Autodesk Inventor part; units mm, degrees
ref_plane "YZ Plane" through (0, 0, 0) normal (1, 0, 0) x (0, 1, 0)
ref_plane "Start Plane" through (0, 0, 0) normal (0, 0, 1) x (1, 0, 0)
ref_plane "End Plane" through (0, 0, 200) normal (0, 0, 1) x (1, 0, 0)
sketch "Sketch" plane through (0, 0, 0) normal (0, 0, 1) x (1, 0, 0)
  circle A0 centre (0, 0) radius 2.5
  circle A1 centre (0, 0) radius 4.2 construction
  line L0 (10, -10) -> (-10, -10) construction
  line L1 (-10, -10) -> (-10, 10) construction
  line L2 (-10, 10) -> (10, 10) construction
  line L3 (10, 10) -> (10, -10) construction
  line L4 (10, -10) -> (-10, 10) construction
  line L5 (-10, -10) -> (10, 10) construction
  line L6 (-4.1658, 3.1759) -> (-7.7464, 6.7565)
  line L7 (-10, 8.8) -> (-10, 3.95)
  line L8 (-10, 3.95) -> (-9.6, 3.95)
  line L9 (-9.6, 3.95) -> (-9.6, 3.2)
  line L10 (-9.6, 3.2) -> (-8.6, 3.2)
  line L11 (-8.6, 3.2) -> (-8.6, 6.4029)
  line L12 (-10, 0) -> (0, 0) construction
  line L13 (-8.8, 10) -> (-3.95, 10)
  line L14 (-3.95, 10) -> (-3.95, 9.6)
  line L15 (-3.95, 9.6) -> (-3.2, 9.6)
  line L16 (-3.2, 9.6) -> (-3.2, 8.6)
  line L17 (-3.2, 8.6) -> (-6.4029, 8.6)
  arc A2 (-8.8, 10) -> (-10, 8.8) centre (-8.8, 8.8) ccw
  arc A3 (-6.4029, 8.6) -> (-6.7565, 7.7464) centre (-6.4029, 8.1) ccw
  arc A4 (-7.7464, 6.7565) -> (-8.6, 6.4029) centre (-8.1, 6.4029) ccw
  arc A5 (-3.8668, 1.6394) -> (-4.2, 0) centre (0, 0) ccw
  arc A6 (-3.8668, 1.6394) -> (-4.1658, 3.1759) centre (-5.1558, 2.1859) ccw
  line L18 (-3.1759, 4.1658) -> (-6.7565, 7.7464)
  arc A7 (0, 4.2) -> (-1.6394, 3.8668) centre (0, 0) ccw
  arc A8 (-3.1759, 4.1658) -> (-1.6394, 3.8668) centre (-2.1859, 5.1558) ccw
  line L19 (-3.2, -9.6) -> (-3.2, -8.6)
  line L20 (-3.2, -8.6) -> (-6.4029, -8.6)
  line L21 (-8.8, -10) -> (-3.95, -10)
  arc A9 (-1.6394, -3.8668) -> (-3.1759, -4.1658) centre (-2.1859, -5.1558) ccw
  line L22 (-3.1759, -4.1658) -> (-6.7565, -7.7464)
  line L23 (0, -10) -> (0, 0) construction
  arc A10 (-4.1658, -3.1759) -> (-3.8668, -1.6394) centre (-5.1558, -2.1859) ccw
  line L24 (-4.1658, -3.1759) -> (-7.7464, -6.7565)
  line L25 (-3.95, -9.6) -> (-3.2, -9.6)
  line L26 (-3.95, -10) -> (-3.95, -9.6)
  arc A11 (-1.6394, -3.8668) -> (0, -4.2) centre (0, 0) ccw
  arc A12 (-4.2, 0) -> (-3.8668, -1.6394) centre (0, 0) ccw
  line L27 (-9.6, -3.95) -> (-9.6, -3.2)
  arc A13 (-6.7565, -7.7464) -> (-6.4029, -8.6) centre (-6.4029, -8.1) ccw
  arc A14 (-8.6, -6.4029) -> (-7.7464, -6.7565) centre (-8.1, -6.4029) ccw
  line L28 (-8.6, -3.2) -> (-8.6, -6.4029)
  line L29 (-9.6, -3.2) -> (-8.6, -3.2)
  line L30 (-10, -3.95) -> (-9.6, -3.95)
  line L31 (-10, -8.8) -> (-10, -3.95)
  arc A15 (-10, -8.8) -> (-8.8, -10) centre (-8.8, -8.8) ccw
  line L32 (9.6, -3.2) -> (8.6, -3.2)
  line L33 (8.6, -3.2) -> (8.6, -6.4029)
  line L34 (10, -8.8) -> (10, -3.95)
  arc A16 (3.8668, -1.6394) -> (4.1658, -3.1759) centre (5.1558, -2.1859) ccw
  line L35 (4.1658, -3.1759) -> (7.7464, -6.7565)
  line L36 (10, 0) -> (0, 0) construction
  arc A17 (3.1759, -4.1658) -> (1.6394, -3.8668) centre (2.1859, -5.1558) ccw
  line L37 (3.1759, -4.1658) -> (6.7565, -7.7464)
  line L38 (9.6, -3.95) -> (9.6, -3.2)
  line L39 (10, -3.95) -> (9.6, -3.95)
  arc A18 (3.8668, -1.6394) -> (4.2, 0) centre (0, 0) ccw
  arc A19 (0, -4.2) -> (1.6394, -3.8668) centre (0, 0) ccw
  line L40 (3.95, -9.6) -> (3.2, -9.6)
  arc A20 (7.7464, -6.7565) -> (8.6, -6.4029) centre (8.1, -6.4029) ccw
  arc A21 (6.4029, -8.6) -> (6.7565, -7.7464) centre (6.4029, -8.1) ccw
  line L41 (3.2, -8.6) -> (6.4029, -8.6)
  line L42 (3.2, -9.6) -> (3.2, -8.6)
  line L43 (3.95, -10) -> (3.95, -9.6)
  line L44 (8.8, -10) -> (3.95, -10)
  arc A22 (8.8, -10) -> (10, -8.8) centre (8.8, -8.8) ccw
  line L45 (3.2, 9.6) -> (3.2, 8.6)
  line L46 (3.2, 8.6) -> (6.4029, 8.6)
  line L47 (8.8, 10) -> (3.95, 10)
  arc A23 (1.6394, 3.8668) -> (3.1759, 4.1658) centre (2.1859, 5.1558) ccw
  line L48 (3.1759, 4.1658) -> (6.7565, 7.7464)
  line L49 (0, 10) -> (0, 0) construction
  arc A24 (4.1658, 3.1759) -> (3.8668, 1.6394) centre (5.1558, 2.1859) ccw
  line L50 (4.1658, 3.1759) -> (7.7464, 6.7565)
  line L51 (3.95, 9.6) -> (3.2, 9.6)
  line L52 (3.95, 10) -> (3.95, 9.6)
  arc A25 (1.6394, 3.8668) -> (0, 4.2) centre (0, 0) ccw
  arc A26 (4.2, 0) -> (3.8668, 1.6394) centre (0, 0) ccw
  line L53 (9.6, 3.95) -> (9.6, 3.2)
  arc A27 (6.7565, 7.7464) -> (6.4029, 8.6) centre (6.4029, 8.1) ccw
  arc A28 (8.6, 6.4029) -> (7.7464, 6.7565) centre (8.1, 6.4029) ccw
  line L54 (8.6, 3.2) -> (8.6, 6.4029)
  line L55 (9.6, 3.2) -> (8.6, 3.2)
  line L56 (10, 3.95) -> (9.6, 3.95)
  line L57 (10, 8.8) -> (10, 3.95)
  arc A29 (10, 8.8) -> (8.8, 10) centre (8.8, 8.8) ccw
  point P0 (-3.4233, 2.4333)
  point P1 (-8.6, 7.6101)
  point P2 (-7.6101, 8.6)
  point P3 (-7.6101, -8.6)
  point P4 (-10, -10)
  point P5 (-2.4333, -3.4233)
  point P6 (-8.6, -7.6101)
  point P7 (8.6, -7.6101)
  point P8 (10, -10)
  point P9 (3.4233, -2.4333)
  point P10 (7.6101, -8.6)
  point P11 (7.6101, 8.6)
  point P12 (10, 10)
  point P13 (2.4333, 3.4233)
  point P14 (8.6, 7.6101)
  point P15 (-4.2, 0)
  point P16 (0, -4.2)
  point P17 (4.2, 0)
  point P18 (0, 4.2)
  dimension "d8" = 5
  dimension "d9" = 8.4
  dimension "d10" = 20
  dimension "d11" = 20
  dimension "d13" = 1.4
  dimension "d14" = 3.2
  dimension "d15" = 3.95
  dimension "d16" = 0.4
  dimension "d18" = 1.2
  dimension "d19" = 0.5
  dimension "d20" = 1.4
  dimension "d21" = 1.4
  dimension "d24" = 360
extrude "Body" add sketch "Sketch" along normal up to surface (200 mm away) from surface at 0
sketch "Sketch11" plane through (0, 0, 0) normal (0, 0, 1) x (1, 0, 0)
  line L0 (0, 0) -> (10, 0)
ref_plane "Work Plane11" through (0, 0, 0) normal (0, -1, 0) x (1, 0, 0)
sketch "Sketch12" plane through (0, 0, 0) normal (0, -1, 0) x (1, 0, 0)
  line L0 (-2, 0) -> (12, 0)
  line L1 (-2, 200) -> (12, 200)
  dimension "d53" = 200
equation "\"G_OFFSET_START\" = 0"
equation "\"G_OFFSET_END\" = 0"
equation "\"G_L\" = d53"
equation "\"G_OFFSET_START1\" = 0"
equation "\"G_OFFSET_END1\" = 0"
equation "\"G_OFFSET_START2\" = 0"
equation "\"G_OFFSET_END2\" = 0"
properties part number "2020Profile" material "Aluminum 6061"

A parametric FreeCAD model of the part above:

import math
import FreeCAD as App
import Part
import Sketcher
from FreeCAD import Vector
Q = App.Units.Quantity

doc = App.newDocument("Part")
body = doc.addObject("PartDesign::Body", "Body")

# Sketch on XY plane
sketch1 = body.newObject("Sketcher::SketchObject", "Sketch")
sketch1.AttachmentSupport = (doc.getObject("XY_Plane"), [""])
sketch1.MapMode = "FlatFace"
sketch1.addGeometry([
    Part.LineSegment(Vector(-7.75, 6.76, 0), Vector(-4.17, 3.18, 0)),  # 0
    Part.ArcOfCircle(Part.Circle(Vector(-5.16, 2.19, 0), Vector(0, 0, 1), 1.4), math.radians(-23), math.radians(45)),  # 1
    Part.ArcOfCircle(Part.Circle(Vector(0, 0, 0), Vector(0, 0, 1), 4.2), math.radians(157), math.radians(180)),  # 2
    Part.ArcOfCircle(Part.Circle(Vector(0, 0, 0), Vector(0, 0, 1), 4.2), math.radians(180), math.radians(203)),  # 3
    Part.ArcOfCircle(Part.Circle(Vector(-5.16, -2.19, 0), Vector(0, 0, 1), 1.4), math.radians(-45), math.radians(23)),  # 4
    Part.LineSegment(Vector(-4.17, -3.18, 0), Vector(-7.75, -6.76, 0)),  # 5
    Part.ArcOfCircle(Part.Circle(Vector(-8.1, -6.4, 0), Vector(0, 0, 1), 0.5), math.radians(180), math.radians(315)),  # 6
    Part.LineSegment(Vector(-8.6, -6.4, 0), Vector(-8.6, -3.2, 0)),  # 7
    Part.LineSegment(Vector(-8.6, -3.2, 0), Vector(-9.6, -3.2, 0)),  # 8
    Part.LineSegment(Vector(-9.6, -3.2, 0), Vector(-9.6, -3.95, 0)),  # 9
    Part.LineSegment(Vector(-9.6, -3.95, 0), Vector(-10, -3.95, 0)),  # 10
    Part.LineSegment(Vector(-10, -3.95, 0), Vector(-10, -8.8, 0)),  # 11
    Part.ArcOfCircle(Part.Circle(Vector(-8.8, -8.8, 0), Vector(0, 0, 1), 1.2), math.radians(180), math.radians(270)),  # 12
    Part.LineSegment(Vector(-8.8, -10, 0), Vector(-3.95, -10, 0)),  # 13
    Part.LineSegment(Vector(-3.95, -10, 0), Vector(-3.95, -9.6, 0)),  # 14
    Part.LineSegment(Vector(-3.95, -9.6, 0), Vector(-3.2, -9.6, 0)),  # 15
    Part.LineSegment(Vector(-3.2, -9.6, 0), Vector(-3.2, -8.6, 0)),  # 16
    Part.LineSegment(Vector(-3.2, -8.6, 0), Vector(-6.4, -8.6, 0)),  # 17
    Part.ArcOfCircle(Part.Circle(Vector(-6.4, -8.1, 0), Vector(0, 0, 1), 0.5), math.radians(135), math.radians(270)),  # 18
    Part.LineSegment(Vector(-6.76, -7.75, 0), Vector(-3.18, -4.17, 0)),  # 19
    Part.ArcOfCircle(Part.Circle(Vector(-2.19, -5.16, 0), Vector(0, 0, 1), 1.4), math.radians(67), math.radians(135)),  # 20
    Part.ArcOfCircle(Part.Circle(Vector(0, 0, 0), Vector(0, 0, 1), 4.2), math.radians(-113), math.radians(-90)),  # 21
    Part.ArcOfCircle(Part.Circle(Vector(0, 0, 0), Vector(0, 0, 1), 4.2), math.radians(-90), math.radians(-67)),  # 22
    Part.ArcOfCircle(Part.Circle(Vector(2.19, -5.16, 0), Vector(0, 0, 1), 1.4), math.radians(45), math.radians(113)),  # 23
    Part.LineSegment(Vector(3.18, -4.17, 0), Vector(6.76, -7.75, 0)),  # 24
    Part.ArcOfCircle(Part.Circle(Vector(6.4, -8.1, 0), Vector(0, 0, 1), 0.5), math.radians(-90), math.radians(45)),  # 25
    Part.LineSegment(Vector(6.4, -8.6, 0), Vector(3.2, -8.6, 0)),  # 26
    Part.LineSegment(Vector(3.2, -8.6, 0), Vector(3.2, -9.6, 0)),  # 27
    Part.LineSegment(Vector(3.2, -9.6, 0), Vector(3.95, -9.6, 0)),  # 28
    Part.LineSegment(Vector(3.95, -9.6, 0), Vector(3.95, -10, 0)),  # 29
    Part.LineSegment(Vector(3.95, -10, 0), Vector(8.8, -10, 0)),  # 30
    Part.ArcOfCircle(Part.Circle(Vector(8.8, -8.8, 0), Vector(0, 0, 1), 1.2), math.radians(-90), math.radians(0)),  # 31
    Part.LineSegment(Vector(10, -8.8, 0), Vector(10, -3.95, 0)),  # 32
    Part.LineSegment(Vector(10, -3.95, 0), Vector(9.6, -3.95, 0)),  # 33
    Part.LineSegment(Vector(9.6, -3.95, 0), Vector(9.6, -3.2, 0)),  # 34
    Part.LineSegment(Vector(9.6, -3.2, 0), Vector(8.6, -3.2, 0)),  # 35
    Part.LineSegment(Vector(8.6, -3.2, 0), Vector(8.6, -6.4, 0)),  # 36
    Part.ArcOfCircle(Part.Circle(Vector(8.1, -6.4, 0), Vector(0, 0, 1), 0.5), math.radians(-135), math.radians(0)),  # 37
    Part.LineSegment(Vector(7.75, -6.76, 0), Vector(4.17, -3.18, 0)),  # 38
    Part.ArcOfCircle(Part.Circle(Vector(5.16, -2.19, 0), Vector(0, 0, 1), 1.4), math.radians(157), math.radians(225)),  # 39
    Part.ArcOfCircle(Part.Circle(Vector(0, 0, 0), Vector(0, 0, 1), 4.2), math.radians(-23), math.radians(0)),  # 40
    Part.ArcOfCircle(Part.Circle(Vector(0, 0, 0), Vector(0, 0, 1), 4.2), math.radians(0), math.radians(23)),  # 41
    Part.ArcOfCircle(Part.Circle(Vector(5.16, 2.19, 0), Vector(0, 0, 1), 1.4), math.radians(135), math.radians(203)),  # 42
    Part.LineSegment(Vector(4.17, 3.18, 0), Vector(7.75, 6.76, 0)),  # 43
    Part.ArcOfCircle(Part.Circle(Vector(8.1, 6.4, 0), Vector(0, 0, 1), 0.5), math.radians(0), math.radians(135)),  # 44
    Part.LineSegment(Vector(8.6, 6.4, 0), Vector(8.6, 3.2, 0)),  # 45
    Part.LineSegment(Vector(8.6, 3.2, 0), Vector(9.6, 3.2, 0)),  # 46
    Part.LineSegment(Vector(9.6, 3.2, 0), Vector(9.6, 3.95, 0)),  # 47
    Part.LineSegment(Vector(9.6, 3.95, 0), Vector(10, 3.95, 0)),  # 48
    Part.LineSegment(Vector(10, 3.95, 0), Vector(10, 8.8, 0)),  # 49
    Part.ArcOfCircle(Part.Circle(Vector(8.8, 8.8, 0), Vector(0, 0, 1), 1.2), math.radians(0), math.radians(90)),  # 50
    Part.LineSegment(Vector(8.8, 10, 0), Vector(3.95, 10, 0)),  # 51
    Part.LineSegment(Vector(3.95, 10, 0), Vector(3.95, 9.6, 0)),  # 52
    Part.LineSegment(Vector(3.95, 9.6, 0), Vector(3.2, 9.6, 0)),  # 53
    Part.LineSegment(Vector(3.2, 9.6, 0), Vector(3.2, 8.6, 0)),  # 54
    Part.LineSegment(Vector(3.2, 8.6, 0), Vector(6.4, 8.6, 0)),  # 55
    Part.ArcOfCircle(Part.Circle(Vector(6.4, 8.1, 0), Vector(0, 0, 1), 0.5), math.radians(-45), math.radians(90)),  # 56
    Part.LineSegment(Vector(6.76, 7.75, 0), Vector(3.18, 4.17, 0)),  # 57
    Part.ArcOfCircle(Part.Circle(Vector(2.19, 5.16, 0), Vector(0, 0, 1), 1.4), math.radians(-113), math.radians(-45)),  # 58
    Part.ArcOfCircle(Part.Circle(Vector(0, 0, 0), Vector(0, 0, 1), 4.2), math.radians(67), math.radians(90)),  # 59
    Part.ArcOfCircle(Part.Circle(Vector(0, 0, 0), Vector(0, 0, 1), 4.2), math.radians(90), math.radians(113)),  # 60
    Part.ArcOfCircle(Part.Circle(Vector(-2.19, 5.16, 0), Vector(0, 0, 1), 1.4), math.radians(-135), math.radians(-67)),  # 61
    Part.LineSegment(Vector(-3.18, 4.17, 0), Vector(-6.76, 7.75, 0)),  # 62
    Part.ArcOfCircle(Part.Circle(Vector(-6.4, 8.1, 0), Vector(0, 0, 1), 0.5), math.radians(90), math.radians(225)),  # 63
    Part.LineSegment(Vector(-6.4, 8.6, 0), Vector(-3.2, 8.6, 0)),  # 64
    Part.LineSegment(Vector(-3.2, 8.6, 0), Vector(-3.2, 9.6, 0)),  # 65
    Part.LineSegment(Vector(-3.2, 9.6, 0), Vector(-3.95, 9.6, 0)),  # 66
    Part.LineSegment(Vector(-3.95, 9.6, 0), Vector(-3.95, 10, 0)),  # 67
    Part.LineSegment(Vector(-3.95, 10, 0), Vector(-8.8, 10, 0)),  # 68
    Part.ArcOfCircle(Part.Circle(Vector(-8.8, 8.8, 0), Vector(0, 0, 1), 1.2), math.radians(90), math.radians(180)),  # 69
    Part.LineSegment(Vector(-10, 8.8, 0), Vector(-10, 3.95, 0)),  # 70
    Part.LineSegment(Vector(-10, 3.95, 0), Vector(-9.6, 3.95, 0)),  # 71
    Part.LineSegment(Vector(-9.6, 3.95, 0), Vector(-9.6, 3.2, 0)),  # 72
    Part.LineSegment(Vector(-9.6, 3.2, 0), Vector(-8.6, 3.2, 0)),  # 73
    Part.LineSegment(Vector(-8.6, 3.2, 0), Vector(-8.6, 6.4, 0)),  # 74
    Part.ArcOfCircle(Part.Circle(Vector(-8.1, 6.4, 0), Vector(0, 0, 1), 0.5), math.radians(45), math.radians(180)),  # 75
    Part.Circle(Vector(0, 0, 0), Vector(0, 0, 1), 2.5),  # 76
], False)
sketch1.addConstraint([
    Sketcher.Constraint("Tangent", 0, 2, 1, 2),
    Sketcher.Constraint("Tangent", 1, 1, 2, 1),
    Sketcher.Constraint("Tangent", 2, 2, 3, 1),
    Sketcher.Constraint("Tangent", 3, 2, 4, 2),
    Sketcher.Constraint("Tangent", 4, 1, 5, 1),
    Sketcher.Constraint("Tangent", 5, 2, 6, 2),
    Sketcher.Constraint("Tangent", 6, 1, 7, 1),
    Sketcher.Constraint("Coincident", 7, 2, 8, 1),
    Sketcher.Constraint("Coincident", 8, 2, 9, 1),
    Sketcher.Constraint("Coincident", 9, 2, 10, 1),
    Sketcher.Constraint("Coincident", 10, 2, 11, 1),
    Sketcher.Constraint("Tangent", 11, 2, 12, 1),
    Sketcher.Constraint("Tangent", 12, 2, 13, 1),
    Sketcher.Constraint("Coincident", 13, 2, 14, 1),
    Sketcher.Constraint("Coincident", 14, 2, 15, 1),
    Sketcher.Constraint("Coincident", 15, 2, 16, 1),
    Sketcher.Constraint("Coincident", 16, 2, 17, 1),
    Sketcher.Constraint("Tangent", 17, 2, 18, 2),
    Sketcher.Constraint("Tangent", 18, 1, 19, 1),
    Sketcher.Constraint("Tangent", 19, 2, 20, 2),
    Sketcher.Constraint("Tangent", 20, 1, 21, 1),
    Sketcher.Constraint("Tangent", 21, 2, 22, 1),
    Sketcher.Constraint("Tangent", 22, 2, 23, 2),
    Sketcher.Constraint("Tangent", 23, 1, 24, 1),
    Sketcher.Constraint("Tangent", 24, 2, 25, 2),
    Sketcher.Constraint("Tangent", 25, 1, 26, 1),
    Sketcher.Constraint("Coincident", 26, 2, 27, 1),
    Sketcher.Constraint("Coincident", 27, 2, 28, 1),
    Sketcher.Constraint("Coincident", 28, 2, 29, 1),
    Sketcher.Constraint("Coincident", 29, 2, 30, 1),
    Sketcher.Constraint("Tangent", 30, 2, 31, 1),
    Sketcher.Constraint("Tangent", 31, 2, 32, 1),
    Sketcher.Constraint("Coincident", 32, 2, 33, 1),
    Sketcher.Constraint("Coincident", 33, 2, 34, 1),
    Sketcher.Constraint("Coincident", 34, 2, 35, 1),
    Sketcher.Constraint("Coincident", 35, 2, 36, 1),
    Sketcher.Constraint("Tangent", 36, 2, 37, 2),
    Sketcher.Constraint("Tangent", 37, 1, 38, 1),
    Sketcher.Constraint("Tangent", 38, 2, 39, 2),
    Sketcher.Constraint("Tangent", 39, 1, 40, 1),
    Sketcher.Constraint("Tangent", 40, 2, 41, 1),
    Sketcher.Constraint("Tangent", 41, 2, 42, 2),
    Sketcher.Constraint("Tangent", 42, 1, 43, 1),
    Sketcher.Constraint("Tangent", 43, 2, 44, 2),
    Sketcher.Constraint("Tangent", 44, 1, 45, 1),
    Sketcher.Constraint("Coincident", 45, 2, 46, 1),
    Sketcher.Constraint("Coincident", 46, 2, 47, 1),
    Sketcher.Constraint("Coincident", 47, 2, 48, 1),
    Sketcher.Constraint("Coincident", 48, 2, 49, 1),
    Sketcher.Constraint("Tangent", 49, 2, 50, 1),
    Sketcher.Constraint("Tangent", 50, 2, 51, 1),
    Sketcher.Constraint("Coincident", 51, 2, 52, 1),
    Sketcher.Constraint("Coincident", 52, 2, 53, 1),
    Sketcher.Constraint("Coincident", 53, 2, 54, 1),
    Sketcher.Constraint("Coincident", 54, 2, 55, 1),
    Sketcher.Constraint("Tangent", 55, 2, 56, 2),
    Sketcher.Constraint("Tangent", 56, 1, 57, 1),
    Sketcher.Constraint("Tangent", 57, 2, 58, 2),
    Sketcher.Constraint("Tangent", 58, 1, 59, 1),
    Sketcher.Constraint("Tangent", 59, 2, 60, 1),
    Sketcher.Constraint("Tangent", 60, 2, 61, 2),
    Sketcher.Constraint("Tangent", 61, 1, 62, 1),
    Sketcher.Constraint("Tangent", 62, 2, 63, 2),
    Sketcher.Constraint("Tangent", 63, 1, 64, 1),
    Sketcher.Constraint("Coincident", 64, 2, 65, 1),
    Sketcher.Constraint("Coincident", 65, 2, 66, 1),
    Sketcher.Constraint("Coincident", 66, 2, 67, 1),
    Sketcher.Constraint("Coincident", 67, 2, 68, 1),
    Sketcher.Constraint("Tangent", 68, 2, 69, 1),
    Sketcher.Constraint("Tangent", 69, 2, 70, 1),
    Sketcher.Constraint("Coincident", 70, 2, 71, 1),
    Sketcher.Constraint("Coincident", 71, 2, 72, 1),
    Sketcher.Constraint("Coincident", 72, 2, 73, 1),
    Sketcher.Constraint("Coincident", 73, 2, 74, 1),
    Sketcher.Constraint("Tangent", 74, 2, 75, 2),
    Sketcher.Constraint("Tangent", 75, 1, 0, 1),
    Sketcher.Constraint("Vertical", 7),
    Sketcher.Constraint("Horizontal", 8),
    Sketcher.Constraint("Vertical", 9),
    Sketcher.Constraint("Horizontal", 10),
    Sketcher.Constraint("Vertical", 11),
    Sketcher.Constraint("Horizontal", 13),
    Sketcher.Constraint("Vertical", 14),
    Sketcher.Constraint("Horizontal", 15),
    Sketcher.Constraint("Vertical", 16),
    Sketcher.Constraint("Horizontal", 17),
    Sketcher.Constraint("Horizontal", 26),
    Sketcher.Constraint("Vertical", 27),
    Sketcher.Constraint("Horizontal", 28),
    Sketcher.Constraint("Vertical", 29),
    Sketcher.Constraint("Horizontal", 30),
    Sketcher.Constraint("Vertical", 32),
    Sketcher.Constraint("Horizontal", 33),
    Sketcher.Constraint("Vertical", 34),
    Sketcher.Constraint("Horizontal", 35),
    Sketcher.Constraint("Vertical", 36),
    Sketcher.Constraint("Vertical", 45),
    Sketcher.Constraint("Horizontal", 46),
    Sketcher.Constraint("Vertical", 47),
    Sketcher.Constraint("Horizontal", 48),
    Sketcher.Constraint("Vertical", 49),
    Sketcher.Constraint("Horizontal", 51),
    Sketcher.Constraint("Vertical", 52),
    Sketcher.Constraint("Horizontal", 53),
    Sketcher.Constraint("Vertical", 54),
    Sketcher.Constraint("Horizontal", 55),
    Sketcher.Constraint("Horizontal", 64),
    Sketcher.Constraint("Vertical", 65),
    Sketcher.Constraint("Horizontal", 66),
    Sketcher.Constraint("Vertical", 67),
    Sketcher.Constraint("Horizontal", 68),
    Sketcher.Constraint("Vertical", 70),
    Sketcher.Constraint("Horizontal", 71),
    Sketcher.Constraint("Vertical", 72),
    Sketcher.Constraint("Horizontal", 73),
    Sketcher.Constraint("Vertical", 74),
    Sketcher.Constraint("Coincident", 2, 3, -1, 1),
    Sketcher.Constraint("Coincident", 21, 3, -1, 1),
    Sketcher.Constraint("Coincident", 40, 3, -1, 1),
    Sketcher.Constraint("Coincident", 59, 3, -1, 1),
    Sketcher.Constraint("Coincident", 76, 3, -1, 1),
    Sketcher.Constraint("Equal", 2, 3),
    Sketcher.Constraint("Equal", 1, 4),
    Sketcher.Constraint("Equal", 6, 18),
    Sketcher.Constraint("Equal", 4, 20),
    Sketcher.Constraint("Equal", 3, 21),
    Sketcher.Constraint("Equal", 21, 22),
    Sketcher.Constraint("Equal", 20, 23),
    Sketcher.Constraint("Equal", 18, 25),
    Sketcher.Constraint("Equal", 12, 31),
    Sketcher.Constraint("Equal", 25, 37),
    Sketcher.Constraint("Equal", 23, 39),
    Sketcher.Constraint("Equal", 22, 40),
    Sketcher.Constraint("Equal", 40, 41),
    Sketcher.Constraint("Equal", 39, 42),
    Sketcher.Constraint("Equal", 37, 44),
    Sketcher.Constraint("Equal", 31, 50),
    Sketcher.Constraint("Equal", 44, 56),
    Sketcher.Constraint("Equal", 42, 58),
    Sketcher.Constraint("Equal", 41, 59),
    Sketcher.Constraint("Equal", 59, 60),
    Sketcher.Constraint("Equal", 58, 61),
    Sketcher.Constraint("Equal", 56, 63),
    Sketcher.Constraint("Equal", 50, 69),
    Sketcher.Constraint("Equal", 63, 75),
    Sketcher.Constraint("Symmetric", 6, 3, 44, 3, -1, 1),
    Sketcher.Constraint("Symmetric", 12, 3, 50, 3, -1, 1),
    Sketcher.Constraint("Symmetric", 18, 3, 56, 3, -1, 1),
    Sketcher.Constraint("Symmetric", 25, 3, 63, 3, -1, 1),
    Sketcher.Constraint("Symmetric", 31, 3, 69, 3, -1, 1),
    Sketcher.Constraint("Symmetric", 37, 3, 75, 3, -1, 1),
    Sketcher.Constraint("Symmetric", 8, 2, 46, 2, -1, 1),
    Sketcher.Constraint("Symmetric", 14, 2, 52, 2, -1, 1),
    Sketcher.Constraint("Symmetric", 27, 2, 65, 2, -1, 1),
    Sketcher.Constraint("Symmetric", 33, 2, 71, 2, -1, 1),
    Sketcher.Constraint("Symmetric", 18, 3, 25, 3, -2),
    Sketcher.Constraint("Symmetric", 12, 3, 31, 3, -2),
    Sketcher.Constraint("Symmetric", 6, 3, 37, 3, -2),
    Sketcher.Constraint("Symmetric", 15, 2, 27, 2, -2),
    Sketcher.Constraint("Symmetric", 9, 2, 33, 2, -2),
    Sketcher.Constraint("PointOnObject", 2, 2, -1),
    Sketcher.Constraint("PointOnObject", 21, 2, -2),
    Sketcher.Constraint("PointOnObject", 40, 2, -1),
    Sketcher.Constraint("PointOnObject", 59, 2, -2),
    Sketcher.Constraint("Perpendicular", 0, 5),
    Sketcher.Constraint("Parallel", 5, 19),
    Sketcher.Constraint("Perpendicular", 19, 24),
    Sketcher.Constraint("Parallel", 24, 38),
    Sketcher.Constraint("Perpendicular", 38, 43),
    Sketcher.Constraint("Parallel", 43, 57),
    Sketcher.Constraint("Perpendicular", 57, 62),
    Sketcher.Constraint("Horizontal", 20, 3, 23, 3),
    Sketcher.Constraint("Horizontal", 8, 2, 34, 2),
    Sketcher.Constraint("Horizontal", 48, 2, 70, 2),
    Sketcher.Constraint("Horizontal", 46, 2, 72, 2),
    Sketcher.Constraint("Vertical", 29, 2, 51, 2),
    Sketcher.Constraint("Vertical", 27, 2, 53, 2),
    Sketcher.Constraint("Vertical", 14, 2, 66, 2),
    Sketcher.Constraint("Equal", 64, 7),
    Sketcher.Constraint("Equal", 66, 9),
    Sketcher.Constraint("Equal", 68, 11),
    Sketcher.Constraint("Equal", 71, 14),
    Sketcher.Constraint("Equal", 73, 16),
    Sketcher.Constraint("Equal", 5, 19),
    Sketcher.Constraint("Diameter", 76, Q("5 mm")),
    Sketcher.Constraint("Radius", 1, Q("1.4 mm")),
    Sketcher.Constraint("Radius", 2, Q("4.2 mm")),
    Sketcher.Constraint("Radius", 6, Q("0.5 mm")),
    Sketcher.Constraint("Radius", 12, Q("1.2 mm")),
    Sketcher.Constraint("DistanceX", 10, 2, 10, 1, Q("0.4 mm")),
    Sketcher.Constraint("DistanceY", 7, 2, -1, 1, Q("3.2 mm")),
    Sketcher.Constraint("DistanceX", 8, 2, 8, 1, Q("1 mm")),
    Sketcher.Constraint("DistanceY", 9, 2, -1, 1, Q("3.95 mm")),
    Sketcher.Constraint("DistanceX", 10, 2, -1, 1, Q("10 mm")),
    Sketcher.Constraint("DistanceX", 17, 2, 17, 1, Q("3.203 mm")),
])
pad1 = body.newObject("PartDesign::Pad", "Pad")
pad1.Profile = sketch1
pad1.Length = 200

doc.recompute()
